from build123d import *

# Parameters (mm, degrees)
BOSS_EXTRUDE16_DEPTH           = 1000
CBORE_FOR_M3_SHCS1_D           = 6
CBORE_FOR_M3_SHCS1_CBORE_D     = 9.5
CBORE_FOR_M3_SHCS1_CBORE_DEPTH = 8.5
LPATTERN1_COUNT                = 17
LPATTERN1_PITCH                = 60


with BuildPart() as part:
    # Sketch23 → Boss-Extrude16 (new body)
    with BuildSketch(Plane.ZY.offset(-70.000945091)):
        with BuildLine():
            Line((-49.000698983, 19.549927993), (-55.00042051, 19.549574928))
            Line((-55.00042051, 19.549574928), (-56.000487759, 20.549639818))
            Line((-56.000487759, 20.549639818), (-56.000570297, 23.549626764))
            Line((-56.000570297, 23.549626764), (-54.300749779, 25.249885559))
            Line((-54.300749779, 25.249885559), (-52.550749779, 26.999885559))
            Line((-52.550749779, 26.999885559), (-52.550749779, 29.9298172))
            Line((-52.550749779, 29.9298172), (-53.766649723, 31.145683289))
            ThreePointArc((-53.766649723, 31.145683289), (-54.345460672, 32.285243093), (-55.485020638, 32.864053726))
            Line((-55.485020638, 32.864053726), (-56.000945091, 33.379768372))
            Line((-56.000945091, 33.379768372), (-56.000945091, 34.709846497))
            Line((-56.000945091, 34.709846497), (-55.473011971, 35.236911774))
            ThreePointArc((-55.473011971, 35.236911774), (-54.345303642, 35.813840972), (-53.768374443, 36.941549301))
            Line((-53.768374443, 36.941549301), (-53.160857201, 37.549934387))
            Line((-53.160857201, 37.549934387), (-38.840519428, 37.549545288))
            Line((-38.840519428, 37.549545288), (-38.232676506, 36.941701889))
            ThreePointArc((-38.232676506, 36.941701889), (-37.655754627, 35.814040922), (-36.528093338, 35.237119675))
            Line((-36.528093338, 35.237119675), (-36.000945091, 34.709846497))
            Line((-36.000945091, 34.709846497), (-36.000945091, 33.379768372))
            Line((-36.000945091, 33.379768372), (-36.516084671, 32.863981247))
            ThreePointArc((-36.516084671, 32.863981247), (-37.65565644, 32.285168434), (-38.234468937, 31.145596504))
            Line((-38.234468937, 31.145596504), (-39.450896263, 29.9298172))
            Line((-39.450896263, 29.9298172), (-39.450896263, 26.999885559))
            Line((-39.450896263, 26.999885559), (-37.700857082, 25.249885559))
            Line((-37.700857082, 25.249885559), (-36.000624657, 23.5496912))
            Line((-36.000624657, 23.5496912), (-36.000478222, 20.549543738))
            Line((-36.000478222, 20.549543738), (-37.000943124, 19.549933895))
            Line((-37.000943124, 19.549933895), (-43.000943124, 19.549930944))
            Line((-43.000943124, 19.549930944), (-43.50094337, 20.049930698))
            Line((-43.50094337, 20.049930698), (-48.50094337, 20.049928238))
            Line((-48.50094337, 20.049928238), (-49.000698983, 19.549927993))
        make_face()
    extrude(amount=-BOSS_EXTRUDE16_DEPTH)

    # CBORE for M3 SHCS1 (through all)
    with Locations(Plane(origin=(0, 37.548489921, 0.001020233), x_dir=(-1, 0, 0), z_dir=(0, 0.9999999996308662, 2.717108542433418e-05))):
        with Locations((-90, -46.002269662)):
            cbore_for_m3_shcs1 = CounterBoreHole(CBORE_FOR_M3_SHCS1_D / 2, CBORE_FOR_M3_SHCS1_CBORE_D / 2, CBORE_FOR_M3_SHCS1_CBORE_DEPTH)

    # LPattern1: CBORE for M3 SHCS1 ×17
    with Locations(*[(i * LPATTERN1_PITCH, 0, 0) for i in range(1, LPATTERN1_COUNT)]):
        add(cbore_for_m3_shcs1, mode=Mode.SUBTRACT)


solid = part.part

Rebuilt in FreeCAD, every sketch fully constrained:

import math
import FreeCAD as App
import Part
import Sketcher

V = App.Vector
Q = App.Units.Quantity

doc = App.newDocument("Part")
body = doc.addObject("PartDesign::Body", "Body")

sketch1 = body.newObject("Sketcher::SketchObject", "Sketch")
sketch1.AttachmentSupport = (doc.getObject("YZ_Plane"), [""])
sketch1.MapMode = "FlatFace"
sketch1.AttachmentOffset = App.Placement(V(0, 0, 70.000945), App.Rotation())
sketch1.addGeometry(Part.LineSegment(V(19.5, -55, 0), V(19.5, -49, 0)), False)
sketch1.addGeometry(Part.LineSegment(V(19.5, -49, 0), V(20, -48.5, 0)), False)
sketch1.addGeometry(Part.LineSegment(V(20, -48.5, 0), V(20, -43.5, 0)), False)
sketch1.addGeometry(Part.LineSegment(V(20, -43.5, 0), V(19.5, -43, 0)), False)
sketch1.addGeometry(Part.LineSegment(V(19.5, -43, 0), V(19.5, -37, 0)), False)
sketch1.addGeometry(Part.LineSegment(V(19.5, -37, 0), V(20.5, -36, 0)), False)
sketch1.addGeometry(Part.LineSegment(V(20.5, -36, 0), V(23.5, -36, 0)), False)
sketch1.addGeometry(Part.LineSegment(V(23.5, -36, 0), V(25.2, -37.7, 0)), False)
sketch1.addGeometry(Part.LineSegment(V(25.2, -37.7, 0), V(27, -39.5, 0)), False)
sketch1.addGeometry(Part.LineSegment(V(27, -39.5, 0), V(29.9, -39.5, 0)), False)
sketch1.addGeometry(Part.LineSegment(V(29.9, -39.5, 0), V(31.1, -38.2, 0)), False)
sketch1.addGeometry(Part.ArcOfCircle(Part.Circle(V(30.8, -36.2, 0), V(0, 0, 1), 2.1), math.radians(-81), math.radians(-9)), False)
sketch1.addGeometry(Part.LineSegment(V(32.9, -36.5, 0), V(33.4, -36, 0)), False)
sketch1.addGeometry(Part.LineSegment(V(33.4, -36, 0), V(34.7, -36, 0)), False)
sketch1.addGeometry(Part.LineSegment(V(34.7, -36, 0), V(35.2, -36.5, 0)), False)
sketch1.addGeometry(Part.ArcOfCircle(Part.Circle(V(37.3, -36.2, 0), V(0, 0, 1), 2.1), math.radians(-171), math.radians(-99)), False)
sketch1.addGeometry(Part.LineSegment(V(36.9, -38.2, 0), V(37.5, -38.8, 0)), False)
sketch1.addGeometry(Part.LineSegment(V(37.5, -38.8, 0), V(37.5, -53.2, 0)), False)
sketch1.addGeometry(Part.LineSegment(V(37.5, -53.2, 0), V(36.9, -53.8, 0)), False)
sketch1.addGeometry(Part.ArcOfCircle(Part.Circle(V(37.3, -55.8, 0), V(0, 0, 1), 2.1), math.radians(99), math.radians(171)), False)
sketch1.addGeometry(Part.LineSegment(V(35.2, -55.5, 0), V(34.7, -56, 0)), False)
sketch1.addGeometry(Part.LineSegment(V(34.7, -56, 0), V(33.4, -56, 0)), False)
sketch1.addGeometry(Part.LineSegment(V(33.4, -56, 0), V(32.9, -55.5, 0)), False)
sketch1.addGeometry(Part.ArcOfCircle(Part.Circle(V(30.8, -55.8, 0), V(0, 0, 1), 2.1), math.radians(9), math.radians(81)), False)
sketch1.addGeometry(Part.LineSegment(V(31.1, -53.8, 0), V(29.9, -52.6, 0)), False)
sketch1.addGeometry(Part.LineSegment(V(29.9, -52.6, 0), V(27, -52.6, 0)), False)
sketch1.addGeometry(Part.LineSegment(V(27, -52.6, 0), V(25.2, -54.3, 0)), False)
sketch1.addGeometry(Part.LineSegment(V(25.2, -54.3, 0), V(23.5, -56, 0)), False)
sketch1.addGeometry(Part.LineSegment(V(23.5, -56, 0), V(20.5, -56, 0)), False)
sketch1.addGeometry(Part.LineSegment(V(20.5, -56, 0), V(19.5, -55, 0)), False)
sketch1.addConstraint(Sketcher.Constraint("Coincident", 0, 2, 1, 1))
sketch1.addConstraint(Sketcher.Constraint("Coincident", 1, 2, 2, 1))
sketch1.addConstraint(Sketcher.Constraint("Coincident", 2, 2, 3, 1))
sketch1.addConstraint(Sketcher.Constraint("Coincident", 3, 2, 4, 1))
sketch1.addConstraint(Sketcher.Constraint("Coincident", 4, 2, 5, 1))
sketch1.addConstraint(Sketcher.Constraint("Coincident", 5, 2, 6, 1))
sketch1.addConstraint(Sketcher.Constraint("Coincident", 6, 2, 7, 1))
sketch1.addConstraint(Sketcher.Constraint("Coincident", 7, 2, 8, 1))
sketch1.addConstraint(Sketcher.Constraint("Coincident", 8, 2, 9, 1))
sketch1.addConstraint(Sketcher.Constraint("Coincident", 9, 2, 10, 1))
sketch1.addConstraint(Sketcher.Constraint("Coincident", 10, 2, 11, 1))
sketch1.addConstraint(Sketcher.Constraint("Coincident", 11, 2, 12, 1))
sketch1.addConstraint(Sketcher.Constraint("Coincident", 12, 2, 13, 1))
sketch1.addConstraint(Sketcher.Constraint("Coincident", 13, 2, 14, 1))
sketch1.addConstraint(Sketcher.Constraint("Coincident", 14, 2, 15, 1))
sketch1.addConstraint(Sketcher.Constraint("Coincident", 15, 2, 16, 1))
sketch1.addConstraint(Sketcher.Constraint("Coincident", 16, 2, 17, 1))
sketch1.addConstraint(Sketcher.Constraint("Coincident", 17, 2, 18, 1))
sketch1.addConstraint(Sketcher.Constraint("Coincident", 18, 2, 19, 1))
sketch1.addConstraint(Sketcher.Constraint("Coincident", 19, 2, 20, 1))
sketch1.addConstraint(Sketcher.Constraint("Coincident", 20, 2, 21, 1))
sketch1.addConstraint(Sketcher.Constraint("Coincident", 21, 2, 22, 1))
sketch1.addConstraint(Sketcher.Constraint("Coincident", 22, 2, 23, 1))
sketch1.addConstraint(Sketcher.Constraint("Coincident", 23, 2, 24, 1))
sketch1.addConstraint(Sketcher.Constraint("Coincident", 24, 2, 25, 1))
sketch1.addConstraint(Sketcher.Constraint("Coincident", 25, 2, 26, 1))
sketch1.addConstraint(Sketcher.Constraint("Coincident", 26, 2, 27, 1))
sketch1.addConstraint(Sketcher.Constraint("Coincident", 27, 2, 28, 1))
sketch1.addConstraint(Sketcher.Constraint("Coincident", 28, 2, 29, 1))
sketch1.addConstraint(Sketcher.Constraint("Coincident", 29, 2, 0, 1))
sketch1.addConstraint(Sketcher.Constraint("Horizontal", 9))
sketch1.addConstraint(Sketcher.Constraint("Horizontal", 13))
sketch1.addConstraint(Sketcher.Constraint("Horizontal", 21))
sketch1.addConstraint(Sketcher.Constraint("Horizontal", 25))
sketch1.addConstraint(Sketcher.Constraint("Equal", 11, 15))
sketch1.addConstraint(Sketcher.Constraint("Equal", 15, 19))
sketch1.addConstraint(Sketcher.Constraint("Equal", 19, 23))
sketch1.addConstraint(Sketcher.Constraint("Parallel", 2, 4))
sketch1.addConstraint(Sketcher.Constraint("Parallel", 7, 8))
sketch1.addConstraint(Sketcher.Constraint("Parallel", 3, 16))
sketch1.addConstraint(Sketcher.Constraint("Perpendicular", 16, 26))
sketch1.addConstraint(Sketcher.Constraint("Perpendicular", 26, 29))
sketch1.addConstraint(Sketcher.Constraint("Vertical", 13, 2, 20, 2))
sketch1.addConstraint(Sketcher.Constraint("Vertical", 12, 2, 21, 2))
sketch1.addConstraint(Sketcher.Constraint("Vertical", 9, 2, 24, 2))
sketch1.addConstraint(Sketcher.Constraint("Vertical", 8, 2, 25, 2))
sketch1.addConstraint(Sketcher.Constraint("Vertical", 7, 2, 26, 2))
sketch1.addConstraint(Sketcher.Constraint("Angle", 26, Q("-135 deg")))
sketch1.addConstraint(Sketcher.Constraint("Radius", 11, 2.059999))
sketch1.addConstraint(Sketcher.Constraint("Distance", 2, 5.0))
sketch1.addConstraint(Sketcher.Constraint("Distance", 4, 6.0))
sketch1.addConstraint(Sketcher.Constraint("DistanceX", 0, 2, 1, 2, 0.5))
sketch1.addConstraint(Sketcher.Constraint("DistanceX", 3, 2, 2, 2, 0.5))
sketch1.addConstraint(Sketcher.Constraint("DistanceX", 7, 2, 8, 2, 1.75))
sketch1.addConstraint(Sketcher.Constraint("DistanceY", 19, 3, 1, 2, 7.301))
sketch1.addConstraint(Sketcher.Constraint("DistanceY", 20, 2, 19, 3, 0.199002))
sketch1.addConstraint(Sketcher.Constraint("Distance", 8, 2.474901))
sketch1.addConstraint(Sketcher.Constraint("DistanceX", 9, 1, 9, 2, 2.929932))
sketch1.addConstraint(Sketcher.Constraint("DistanceX", 13, 1, 13, 2, 1.330078))
sketch1.addConstraint(Sketcher.Constraint("DistanceY", 23, 3, -1, 1, 55.8021))
sketch1.addConstraint(Sketcher.Constraint("DistanceY", 0, 2, -1, 1, 49.000699))
sketch1.addConstraint(Sketcher.Constraint("DistanceX", -1, 1, 15, 2, 36.941702))
sketch1.addConstraint(Sketcher.Constraint("DistanceX", 19, 3, 15, 3, 0.0002))
sketch1.addConstraint(Sketcher.Constraint("DistanceX", 0, 2, 11, 3, 11.278601))
sketch1.addConstraint(Sketcher.Constraint("DistanceX", 2, 2, 11, 3, 10.778598))
sketch1.addConstraint(Sketcher.Constraint("DistanceX", 11, 2, 15, 3, 4.4067))
sketch1.addConstraint(Sketcher.Constraint("DistanceX", 13, 2, 16, 2, 2.839699))
sketch1.addConstraint(Sketcher.Constraint("DistanceY", 23, 2, 24, 2, 1.2159))
sketch1.addConstraint(Sketcher.Constraint("Distance", 0, 5.999722))
sketch1.addConstraint(Sketcher.Constraint("Distance", 10, 1.71983))
sketch1.addConstraint(Sketcher.Constraint("Distance", 14, 0.745589))
sketch1.addConstraint(Sketcher.Constraint("Distance", 16, 0.85962))
sketch1.addConstraint(Sketcher.Constraint("Distance", 22, 0.729479))
sketch1.addConstraint(Sketcher.Constraint("Distance", 24, 1.719518))
sketch1.addConstraint(Sketcher.Constraint("Distance", 27, 2.404219))
sketch1.addConstraint(Sketcher.Constraint("DistanceX", -1, 1, 11, 3, 30.828529))
sketch1.addConstraint(Sketcher.Constraint("DistanceX", -1, 1, 15, 3, 37.270681))
sketch1.addConstraint(Sketcher.Constraint("DistanceY", 5, 2, -1, 1, 36.000478))
sketch1.addConstraint(Sketcher.Constraint("DistanceX", -1, 1, 6, 2, 23.549691))
sketch1.addConstraint(Sketcher.Constraint("DistanceY", 10, 2, -1, 1, 38.234469))
sketch1.addConstraint(Sketcher.Constraint("DistanceX", -1, 1, 14, 2, 35.23712))
sketch1.addConstraint(Sketcher.Constraint("DistanceY", 16, 2, -1, 1, 38.840519))
sketch1.addConstraint(Sketcher.Constraint("DistanceX", -1, 1, 18, 2, 36.941549))
sketch1.addConstraint(Sketcher.Constraint("DistanceX", -1, 1, 19, 2, 35.236912))
sketch1.addConstraint(Sketcher.Constraint("DistanceY", 19, 2, -1, 1, 55.473012))
sketch1.addConstraint(Sketcher.Constraint("DistanceY", 22, 2, -1, 1, 55.485021))
sketch1.addConstraint(Sketcher.Constraint("DistanceY", 23, 2, -1, 1, 53.76665))
sketch1.addConstraint(Sketcher.Constraint("DistanceY", 27, 2, -1, 1, 56.00057))
sketch1.addConstraint(Sketcher.Constraint("DistanceX", -1, 1, 28, 2, 20.54964))
sketch1.addConstraint(Sketcher.Constraint("DistanceX", 4, 2, 5, 2, 0.99961))
sketch1.addConstraint(Sketcher.Constraint("DistanceY", 11, 3, 5, 2, 0.198538))
sketch1.addConstraint(Sketcher.Constraint("DistanceX", 23, 3, 17, 2, 6.721331))
sketch1.addConstraint(Sketcher.Constraint("DistanceY", 17, 2, 15, 2, 14.928181))
sketch1.addConstraint(Sketcher.Constraint("DistanceY", 28, 2, 0, 2, 6.999789))
pad1 = body.newObject("PartDesign::Pad", "Pad")
pad1.Profile = sketch1
pad1.Length = 1000

sketch2 = body.newObject("Sketcher::SketchObject", "Sketch001")
sketch2.AttachmentSupport = (doc.getObject("XZ_Plane"), [""])
sketch2.MapMode = "FlatFace"
sketch2.AttachmentOffset = App.Placement(V(0, 0, -37.54849), App.Rotation())
sketch2.addGeometry(Part.Circle(V(90, -46, 0), V(0, 0, 1), 3), False)
sketch2.addConstraint(Sketcher.Constraint("Diameter", 0, 6.0))
sketch2.addConstraint(Sketcher.Constraint("DistanceX", -1, 1, 0, 3, 90.0))
sketch2.addConstraint(Sketcher.Constraint("DistanceY", 0, 3, -1, 1, 46.001249))
doc.recompute()
hole = body.newObject("PartDesign::Hole", "Hole")
hole.Profile = sketch2
hole.ThreadType = "None"
hole.Diameter = 6
hole.DepthType = "ThroughAll"
hole.HoleCutType = "Counterbore"
hole.HoleCutDiameter = 9.5
hole.HoleCutDepth = 8.5
hole.Reversed = True
doc.recompute()

linearpattern = body.newObject("PartDesign::LinearPattern", "LinearPattern")
linearpattern.Originals = [hole]
linearpattern.Direction = (doc.getObject("X_Axis"), [""])
linearpattern.Mode = "offset"
linearpattern.Offset = 60
linearpattern.Occurrences = 17
body.Tip = linearpattern

doc.recompute()
